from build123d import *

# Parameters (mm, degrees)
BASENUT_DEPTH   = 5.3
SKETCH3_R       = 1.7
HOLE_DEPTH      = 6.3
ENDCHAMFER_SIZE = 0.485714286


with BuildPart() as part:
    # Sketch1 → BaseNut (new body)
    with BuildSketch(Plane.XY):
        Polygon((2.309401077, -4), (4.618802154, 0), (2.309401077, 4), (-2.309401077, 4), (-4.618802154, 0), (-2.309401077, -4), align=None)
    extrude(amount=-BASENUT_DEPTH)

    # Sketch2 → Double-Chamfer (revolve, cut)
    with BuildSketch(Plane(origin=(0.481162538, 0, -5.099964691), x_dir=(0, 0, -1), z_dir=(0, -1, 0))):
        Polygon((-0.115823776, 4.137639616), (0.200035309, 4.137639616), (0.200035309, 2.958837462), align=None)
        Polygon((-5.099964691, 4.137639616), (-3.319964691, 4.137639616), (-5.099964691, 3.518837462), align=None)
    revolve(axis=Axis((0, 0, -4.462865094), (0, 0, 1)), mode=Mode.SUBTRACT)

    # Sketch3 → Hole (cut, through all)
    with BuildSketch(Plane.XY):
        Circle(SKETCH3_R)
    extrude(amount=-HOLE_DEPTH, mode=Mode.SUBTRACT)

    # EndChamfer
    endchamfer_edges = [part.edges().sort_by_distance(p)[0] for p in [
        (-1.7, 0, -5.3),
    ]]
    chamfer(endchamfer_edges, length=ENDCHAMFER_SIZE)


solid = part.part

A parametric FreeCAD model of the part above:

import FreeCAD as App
import Part
import Sketcher
Q = App.Units.Quantity


def edges_at(feature, points):
    """Names of the edges that pass closest to the given points."""
    edges = feature.Shape.Edges
    near = lambda p: min(range(len(edges)), key=lambda i: edges[i].distToShape(Part.Vertex(*p))[0])
    return sorted({f"Edge{near(p) + 1}" for p in points})

doc = App.newDocument("Part")
body = doc.addObject("PartDesign::Body", "Body")

sketch1 = body.newObject("Sketcher::SketchObject", "Sketch")
sketch1.AttachmentSupport = (doc.getObject("XY_Plane"), [""])
sketch1.MapMode = "FlatFace"
sketch1.addGeometry([
    Part.LineSegment(App.Vector(2.309401, -4, 0), App.Vector(4.618802, 0, 0)),
    Part.LineSegment(App.Vector(4.618802, 0, 0), App.Vector(2.309401, 4, 0)),
    Part.LineSegment(App.Vector(2.309401, 4, 0), App.Vector(-2.309401, 4, 0)),
    Part.LineSegment(App.Vector(-2.309401, 4, 0), App.Vector(-4.618802, 0, 0)),
    Part.LineSegment(App.Vector(-4.618802, 0, 0), App.Vector(-2.309401, -4, 0)),
    Part.LineSegment(App.Vector(-2.309401, -4, 0), App.Vector(2.309401, -4, 0)),
], False)
sketch1.addConstraint([
    Sketcher.Constraint("Coincident", 0, 2, 1, 1),
    Sketcher.Constraint("Coincident", 1, 2, 2, 1),
    Sketcher.Constraint("Coincident", 2, 2, 3, 1),
    Sketcher.Constraint("Coincident", 3, 2, 4, 1),
    Sketcher.Constraint("Coincident", 4, 2, 5, 1),
    Sketcher.Constraint("Coincident", 5, 2, 0, 1),
    Sketcher.Constraint("Horizontal", 2),
    Sketcher.Constraint("Horizontal", 5),
    Sketcher.Constraint("Symmetric", 0, 2, 3, 2, -1, 1),
    Sketcher.Constraint("Symmetric", 1, 2, 4, 2, -1, 1),
    Sketcher.Constraint("PointOnObject", 0, 2, -1),
    Sketcher.Constraint("Parallel", 0, 3),
    Sketcher.Constraint("Vertical", 2, 2, 4, 2),
    Sketcher.Constraint("Angle", 0, Q("60 deg")),
    Sketcher.Constraint("DistanceY", -1, 1, 1, 2, Q("4 mm")),
    Sketcher.Constraint("DistanceX", -1, 1, 1, 2, Q("2.309401 mm")),
])
pad1 = body.newObject("PartDesign::Pad", "Pad")
pad1.Profile = sketch1
pad1.Length = 5.3
pad1.Reversed = True

sketch2 = body.newObject("Sketcher::SketchObject", "Sketch001")
sketch2.AttachmentSupport = (doc.getObject("XZ_Plane"), [""])
sketch2.MapMode = "FlatFace"
sketch2.addGeometry([
    Part.LineSegment(App.Vector(4.618802, -5.3, 0), App.Vector(4.618802, -4.984141, 0)),
    Part.LineSegment(App.Vector(4.618802, -4.984141, 0), App.Vector(3.44, -5.3, 0)),
    Part.LineSegment(App.Vector(3.44, -5.3, 0), App.Vector(4.618802, -5.3, 0)),
    Part.LineSegment(App.Vector(4.618802, -1.78, 0), App.Vector(4.618802, 0, 0)),
    Part.LineSegment(App.Vector(4.618802, 0, 0), App.Vector(4, 0, 0)),
    Part.LineSegment(App.Vector(4, 0, 0), App.Vector(4.618802, -1.78, 0)),
], False)
sketch2.addConstraint([
    Sketcher.Constraint("Coincident", 0, 2, 1, 1),
    Sketcher.Constraint("Coincident", 1, 2, 2, 1),
    Sketcher.Constraint("Coincident", 2, 2, 0, 1),
    Sketcher.Constraint("Coincident", 3, 2, 4, 1),
    Sketcher.Constraint("Coincident", 4, 2, 5, 1),
    Sketcher.Constraint("Coincident", 5, 2, 3, 1),
    Sketcher.Constraint("Vertical", 0),
    Sketcher.Constraint("Horizontal", 2),
    Sketcher.Constraint("Vertical", 3),
    Sketcher.Constraint("Horizontal", 4),
    Sketcher.Constraint("PointOnObject", 3, 2, -1),
    Sketcher.Constraint("Vertical", 2, 2, 3, 2),
    Sketcher.Constraint("Angle", 1, Q("-165 deg")),
    Sketcher.Constraint("DistanceX", -1, 1, 4, 2, Q("4 mm")),
    Sketcher.Constraint("DistanceY", 3, 1, 3, 2, Q("1.78 mm")),
    Sketcher.Constraint("DistanceY", 1, 2, -1, 1, Q("5.3 mm")),
    Sketcher.Constraint("DistanceX", -1, 1, 1, 2, Q("3.44 mm")),
    Sketcher.Constraint("DistanceY", 0, 1, 0, 2, Q("0.315859 mm")),
])
groove = body.newObject("PartDesign::Groove", "Groove")
groove.Profile = sketch2
groove.ReferenceAxis = (sketch2, ["V_Axis"])
groove.Angle = 360

sketch3 = body.newObject("Sketcher::SketchObject", "Sketch002")
sketch3.AttachmentSupport = (doc.getObject("XY_Plane"), [""])
sketch3.MapMode = "FlatFace"
sketch3.addGeometry(Part.Circle(App.Vector(0, 0, 0), App.Vector(0, 0, 1), 1.7), False)
sketch3.addConstraint([
    Sketcher.Constraint("Coincident", 0, 3, -1, 1),
    Sketcher.Constraint("Diameter", 0, Q("3.4 mm")),
])
pocket1 = body.newObject("PartDesign::Pocket", "Pocket")
pocket1.Profile = sketch3
pocket1.Type = "ThroughAll"
doc.recompute()

chamfer = body.newObject("PartDesign::Chamfer", "Chamfer")
chamfer.Base = (pocket1, edges_at(pocket1, [(-1.7, 0, -5.3)]))
chamfer.Size = 0.485714

doc.recompute()
